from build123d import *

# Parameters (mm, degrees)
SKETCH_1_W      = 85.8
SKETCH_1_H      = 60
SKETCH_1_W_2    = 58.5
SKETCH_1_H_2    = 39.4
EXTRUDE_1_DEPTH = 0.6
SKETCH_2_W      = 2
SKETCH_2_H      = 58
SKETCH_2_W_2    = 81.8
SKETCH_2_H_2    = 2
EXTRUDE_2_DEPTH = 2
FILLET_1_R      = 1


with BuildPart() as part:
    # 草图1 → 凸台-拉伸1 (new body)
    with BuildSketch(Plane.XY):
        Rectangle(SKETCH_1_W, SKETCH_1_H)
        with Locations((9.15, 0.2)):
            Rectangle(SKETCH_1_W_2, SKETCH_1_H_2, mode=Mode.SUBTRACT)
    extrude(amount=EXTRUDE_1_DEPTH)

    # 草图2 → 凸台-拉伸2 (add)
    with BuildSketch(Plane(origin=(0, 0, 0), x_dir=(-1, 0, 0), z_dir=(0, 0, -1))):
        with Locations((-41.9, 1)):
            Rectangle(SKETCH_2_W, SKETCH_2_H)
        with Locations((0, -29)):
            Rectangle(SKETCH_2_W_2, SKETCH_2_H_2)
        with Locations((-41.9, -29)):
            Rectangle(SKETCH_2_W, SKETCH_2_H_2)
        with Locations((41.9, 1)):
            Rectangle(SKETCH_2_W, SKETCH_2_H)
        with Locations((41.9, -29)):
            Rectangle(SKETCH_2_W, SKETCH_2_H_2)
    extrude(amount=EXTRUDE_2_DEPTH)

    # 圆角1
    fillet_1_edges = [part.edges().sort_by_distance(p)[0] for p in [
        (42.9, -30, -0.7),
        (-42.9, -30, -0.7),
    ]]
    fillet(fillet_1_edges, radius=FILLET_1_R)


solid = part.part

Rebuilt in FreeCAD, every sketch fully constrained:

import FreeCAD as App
import Part
import Sketcher


def edges_at(feature, points):
    """Names of the edges that pass closest to the given points."""
    edges = feature.Shape.Edges
    near = lambda p: min(range(len(edges)), key=lambda i: edges[i].distToShape(Part.Vertex(*p))[0])
    return sorted({f"Edge{near(p) + 1}" for p in points})


def add_polygon(sketch, points):
    """Adds a closed chain of lines whose ends are joined by coincident constraints."""
    first, n = sketch.GeometryCount, len(points)
    for a, b in zip(points, points[1:] + points[:1]):
        sketch.addGeometry(Part.LineSegment(App.Vector(*a, 0), App.Vector(*b, 0)), False)
    for i in range(n):
        sketch.addConstraint(Sketcher.Constraint("Coincident", first + i, 2, first + (i + 1) % n, 1))

doc = App.newDocument("Part")
params = doc.addObject("Spreadsheet::Sheet", "Params")
for row, (alias, value) in enumerate([
    ("sketch1_height", "60 mm"),
    ("sketch1_width", "85.8 mm"),
    ("sketch1_width2", "58.5 mm"),
    ("sketch1_height2", "39.4 mm"),
    ("pad1_length", "0.6 mm"),
    ("sketch2_width", "2 mm"),
    ("sketch2_height", "60 mm"),
    ("sketch2_height2", "58 mm"),
    ("sketch2_width2", "85.8 mm"),
    ("pad2_length", "2 mm"),
    ("fillet_radius", "1 mm"),
], start=1):
    params.set(f"A{row}", alias)
    params.set(f"B{row}", "=" + value)
    params.setAlias(f"B{row}", alias)

body = doc.addObject("PartDesign::Body", "Body")

sketch1 = doc.addObject("Sketcher::SketchObject", "Sketch")
body.addObject(sketch1)
sketch1.AttachmentSupport = (doc.XY_Plane, [""])
sketch1.MapMode = "FlatFace"
add_polygon(sketch1, [(-42.9, 30), (-42.9, -30), (42.9, -30), (42.9, 30)])
add_polygon(sketch1, [(38.4, -19.5), (-20.1, -19.5), (-20.1, 19.9), (38.4, 19.9)])
sketch1.addConstraint(Sketcher.Constraint("Vertical", 0))
sketch1.addConstraint(Sketcher.Constraint("Horizontal", 1))
sketch1.addConstraint(Sketcher.Constraint("Vertical", 2))
sketch1.addConstraint(Sketcher.Constraint("Horizontal", 3))
sketch1.addConstraint(Sketcher.Constraint("Horizontal", 4))
sketch1.addConstraint(Sketcher.Constraint("Vertical", 5))
sketch1.addConstraint(Sketcher.Constraint("Horizontal", 6))
sketch1.addConstraint(Sketcher.Constraint("Vertical", 7))
sketch1.addConstraint(Sketcher.Constraint("Symmetric", 0, 2, 2, 2, -1, 1))
sketch1.addConstraint(Sketcher.Constraint("DistanceY", 0, 2, 0, 1, 60.0))
sketch1.addConstraint(Sketcher.Constraint("DistanceX", 1, 1, 1, 2, 85.8))
sketch1.addConstraint(Sketcher.Constraint("DistanceX", 4, 2, 4, 1, 58.5))
sketch1.addConstraint(Sketcher.Constraint("DistanceY", 5, 1, 5, 2, 39.4))
sketch1.addConstraint(Sketcher.Constraint("DistanceX", 4, 2, 1, 2, 63.0))
sketch1.addConstraint(Sketcher.Constraint("DistanceY", 4, 2, -1, 1, 19.5))
sketch1.setExpression("Constraints[17]", "Params.sketch1_height")
sketch1.setExpression("Constraints[18]", "Params.sketch1_width")
sketch1.setExpression("Constraints[19]", "Params.sketch1_width2")
sketch1.setExpression("Constraints[20]", "Params.sketch1_height2")
pad1 = doc.addObject("PartDesign::Pad", "Pad")
body.addObject(pad1)
pad1.Profile = sketch1
pad1.setExpression("Length", "Params.pad1_length")

sketch2 = doc.addObject("Sketcher::SketchObject", "Sketch001")
body.addObject(sketch2)
sketch2.AttachmentSupport = (doc.XY_Plane, [""])
sketch2.MapMode = "FlatFace"
add_polygon(sketch2, [(42.9, 30), (42.9, -30), (-42.9, -30), (-42.9, 30), (-40.9, 30), (-40.9, -28), (40.9, -28), (40.9, 30)])
sketch2.addConstraint(Sketcher.Constraint("Vertical", 0))
sketch2.addConstraint(Sketcher.Constraint("Horizontal", 1))
sketch2.addConstraint(Sketcher.Constraint("Vertical", 2))
sketch2.addConstraint(Sketcher.Constraint("Horizontal", 3))
sketch2.addConstraint(Sketcher.Constraint("Vertical", 4))
sketch2.addConstraint(Sketcher.Constraint("Horizontal", 5))
sketch2.addConstraint(Sketcher.Constraint("Vertical", 6))
sketch2.addConstraint(Sketcher.Constraint("Horizontal", 7))
sketch2.addConstraint(Sketcher.Constraint("Symmetric", 0, 2, 2, 2, -1, 1))
sketch2.addConstraint(Sketcher.Constraint("Symmetric", 3, 2, 6, 2, -2))
sketch2.addConstraint(Sketcher.Constraint("DistanceX", 3, 1, 3, 2, 2.0))
sketch2.addConstraint(Sketcher.Constraint("DistanceY", 0, 2, 0, 1, 60.0))
sketch2.addConstraint(Sketcher.Constraint("DistanceY", 4, 2, 4, 1, 58.0))
sketch2.addConstraint(Sketcher.Constraint("DistanceX", 1, 2, 1, 1, 85.8))
sketch2.setExpression("Constraints[18]", "Params.sketch2_width")
sketch2.setExpression("Constraints[19]", "Params.sketch2_height")
sketch2.setExpression("Constraints[20]", "Params.sketch2_height2")
sketch2.setExpression("Constraints[21]", "Params.sketch2_width2")
pad2 = doc.addObject("PartDesign::Pad", "Pad001")
body.addObject(pad2)
pad2.Profile = sketch2
pad2.setExpression("Length", "Params.pad2_length")
pad2.Reversed = True
doc.recompute()

fillet = doc.addObject("PartDesign::Fillet", "Fillet")
body.addObject(fillet)
fillet.Base = (pad2, edges_at(pad2, [(42.9, -30, -0.7), (-42.9, -30, -0.7)]))
fillet.setExpression("Radius", "Params.fillet_radius")

doc.recompute()
